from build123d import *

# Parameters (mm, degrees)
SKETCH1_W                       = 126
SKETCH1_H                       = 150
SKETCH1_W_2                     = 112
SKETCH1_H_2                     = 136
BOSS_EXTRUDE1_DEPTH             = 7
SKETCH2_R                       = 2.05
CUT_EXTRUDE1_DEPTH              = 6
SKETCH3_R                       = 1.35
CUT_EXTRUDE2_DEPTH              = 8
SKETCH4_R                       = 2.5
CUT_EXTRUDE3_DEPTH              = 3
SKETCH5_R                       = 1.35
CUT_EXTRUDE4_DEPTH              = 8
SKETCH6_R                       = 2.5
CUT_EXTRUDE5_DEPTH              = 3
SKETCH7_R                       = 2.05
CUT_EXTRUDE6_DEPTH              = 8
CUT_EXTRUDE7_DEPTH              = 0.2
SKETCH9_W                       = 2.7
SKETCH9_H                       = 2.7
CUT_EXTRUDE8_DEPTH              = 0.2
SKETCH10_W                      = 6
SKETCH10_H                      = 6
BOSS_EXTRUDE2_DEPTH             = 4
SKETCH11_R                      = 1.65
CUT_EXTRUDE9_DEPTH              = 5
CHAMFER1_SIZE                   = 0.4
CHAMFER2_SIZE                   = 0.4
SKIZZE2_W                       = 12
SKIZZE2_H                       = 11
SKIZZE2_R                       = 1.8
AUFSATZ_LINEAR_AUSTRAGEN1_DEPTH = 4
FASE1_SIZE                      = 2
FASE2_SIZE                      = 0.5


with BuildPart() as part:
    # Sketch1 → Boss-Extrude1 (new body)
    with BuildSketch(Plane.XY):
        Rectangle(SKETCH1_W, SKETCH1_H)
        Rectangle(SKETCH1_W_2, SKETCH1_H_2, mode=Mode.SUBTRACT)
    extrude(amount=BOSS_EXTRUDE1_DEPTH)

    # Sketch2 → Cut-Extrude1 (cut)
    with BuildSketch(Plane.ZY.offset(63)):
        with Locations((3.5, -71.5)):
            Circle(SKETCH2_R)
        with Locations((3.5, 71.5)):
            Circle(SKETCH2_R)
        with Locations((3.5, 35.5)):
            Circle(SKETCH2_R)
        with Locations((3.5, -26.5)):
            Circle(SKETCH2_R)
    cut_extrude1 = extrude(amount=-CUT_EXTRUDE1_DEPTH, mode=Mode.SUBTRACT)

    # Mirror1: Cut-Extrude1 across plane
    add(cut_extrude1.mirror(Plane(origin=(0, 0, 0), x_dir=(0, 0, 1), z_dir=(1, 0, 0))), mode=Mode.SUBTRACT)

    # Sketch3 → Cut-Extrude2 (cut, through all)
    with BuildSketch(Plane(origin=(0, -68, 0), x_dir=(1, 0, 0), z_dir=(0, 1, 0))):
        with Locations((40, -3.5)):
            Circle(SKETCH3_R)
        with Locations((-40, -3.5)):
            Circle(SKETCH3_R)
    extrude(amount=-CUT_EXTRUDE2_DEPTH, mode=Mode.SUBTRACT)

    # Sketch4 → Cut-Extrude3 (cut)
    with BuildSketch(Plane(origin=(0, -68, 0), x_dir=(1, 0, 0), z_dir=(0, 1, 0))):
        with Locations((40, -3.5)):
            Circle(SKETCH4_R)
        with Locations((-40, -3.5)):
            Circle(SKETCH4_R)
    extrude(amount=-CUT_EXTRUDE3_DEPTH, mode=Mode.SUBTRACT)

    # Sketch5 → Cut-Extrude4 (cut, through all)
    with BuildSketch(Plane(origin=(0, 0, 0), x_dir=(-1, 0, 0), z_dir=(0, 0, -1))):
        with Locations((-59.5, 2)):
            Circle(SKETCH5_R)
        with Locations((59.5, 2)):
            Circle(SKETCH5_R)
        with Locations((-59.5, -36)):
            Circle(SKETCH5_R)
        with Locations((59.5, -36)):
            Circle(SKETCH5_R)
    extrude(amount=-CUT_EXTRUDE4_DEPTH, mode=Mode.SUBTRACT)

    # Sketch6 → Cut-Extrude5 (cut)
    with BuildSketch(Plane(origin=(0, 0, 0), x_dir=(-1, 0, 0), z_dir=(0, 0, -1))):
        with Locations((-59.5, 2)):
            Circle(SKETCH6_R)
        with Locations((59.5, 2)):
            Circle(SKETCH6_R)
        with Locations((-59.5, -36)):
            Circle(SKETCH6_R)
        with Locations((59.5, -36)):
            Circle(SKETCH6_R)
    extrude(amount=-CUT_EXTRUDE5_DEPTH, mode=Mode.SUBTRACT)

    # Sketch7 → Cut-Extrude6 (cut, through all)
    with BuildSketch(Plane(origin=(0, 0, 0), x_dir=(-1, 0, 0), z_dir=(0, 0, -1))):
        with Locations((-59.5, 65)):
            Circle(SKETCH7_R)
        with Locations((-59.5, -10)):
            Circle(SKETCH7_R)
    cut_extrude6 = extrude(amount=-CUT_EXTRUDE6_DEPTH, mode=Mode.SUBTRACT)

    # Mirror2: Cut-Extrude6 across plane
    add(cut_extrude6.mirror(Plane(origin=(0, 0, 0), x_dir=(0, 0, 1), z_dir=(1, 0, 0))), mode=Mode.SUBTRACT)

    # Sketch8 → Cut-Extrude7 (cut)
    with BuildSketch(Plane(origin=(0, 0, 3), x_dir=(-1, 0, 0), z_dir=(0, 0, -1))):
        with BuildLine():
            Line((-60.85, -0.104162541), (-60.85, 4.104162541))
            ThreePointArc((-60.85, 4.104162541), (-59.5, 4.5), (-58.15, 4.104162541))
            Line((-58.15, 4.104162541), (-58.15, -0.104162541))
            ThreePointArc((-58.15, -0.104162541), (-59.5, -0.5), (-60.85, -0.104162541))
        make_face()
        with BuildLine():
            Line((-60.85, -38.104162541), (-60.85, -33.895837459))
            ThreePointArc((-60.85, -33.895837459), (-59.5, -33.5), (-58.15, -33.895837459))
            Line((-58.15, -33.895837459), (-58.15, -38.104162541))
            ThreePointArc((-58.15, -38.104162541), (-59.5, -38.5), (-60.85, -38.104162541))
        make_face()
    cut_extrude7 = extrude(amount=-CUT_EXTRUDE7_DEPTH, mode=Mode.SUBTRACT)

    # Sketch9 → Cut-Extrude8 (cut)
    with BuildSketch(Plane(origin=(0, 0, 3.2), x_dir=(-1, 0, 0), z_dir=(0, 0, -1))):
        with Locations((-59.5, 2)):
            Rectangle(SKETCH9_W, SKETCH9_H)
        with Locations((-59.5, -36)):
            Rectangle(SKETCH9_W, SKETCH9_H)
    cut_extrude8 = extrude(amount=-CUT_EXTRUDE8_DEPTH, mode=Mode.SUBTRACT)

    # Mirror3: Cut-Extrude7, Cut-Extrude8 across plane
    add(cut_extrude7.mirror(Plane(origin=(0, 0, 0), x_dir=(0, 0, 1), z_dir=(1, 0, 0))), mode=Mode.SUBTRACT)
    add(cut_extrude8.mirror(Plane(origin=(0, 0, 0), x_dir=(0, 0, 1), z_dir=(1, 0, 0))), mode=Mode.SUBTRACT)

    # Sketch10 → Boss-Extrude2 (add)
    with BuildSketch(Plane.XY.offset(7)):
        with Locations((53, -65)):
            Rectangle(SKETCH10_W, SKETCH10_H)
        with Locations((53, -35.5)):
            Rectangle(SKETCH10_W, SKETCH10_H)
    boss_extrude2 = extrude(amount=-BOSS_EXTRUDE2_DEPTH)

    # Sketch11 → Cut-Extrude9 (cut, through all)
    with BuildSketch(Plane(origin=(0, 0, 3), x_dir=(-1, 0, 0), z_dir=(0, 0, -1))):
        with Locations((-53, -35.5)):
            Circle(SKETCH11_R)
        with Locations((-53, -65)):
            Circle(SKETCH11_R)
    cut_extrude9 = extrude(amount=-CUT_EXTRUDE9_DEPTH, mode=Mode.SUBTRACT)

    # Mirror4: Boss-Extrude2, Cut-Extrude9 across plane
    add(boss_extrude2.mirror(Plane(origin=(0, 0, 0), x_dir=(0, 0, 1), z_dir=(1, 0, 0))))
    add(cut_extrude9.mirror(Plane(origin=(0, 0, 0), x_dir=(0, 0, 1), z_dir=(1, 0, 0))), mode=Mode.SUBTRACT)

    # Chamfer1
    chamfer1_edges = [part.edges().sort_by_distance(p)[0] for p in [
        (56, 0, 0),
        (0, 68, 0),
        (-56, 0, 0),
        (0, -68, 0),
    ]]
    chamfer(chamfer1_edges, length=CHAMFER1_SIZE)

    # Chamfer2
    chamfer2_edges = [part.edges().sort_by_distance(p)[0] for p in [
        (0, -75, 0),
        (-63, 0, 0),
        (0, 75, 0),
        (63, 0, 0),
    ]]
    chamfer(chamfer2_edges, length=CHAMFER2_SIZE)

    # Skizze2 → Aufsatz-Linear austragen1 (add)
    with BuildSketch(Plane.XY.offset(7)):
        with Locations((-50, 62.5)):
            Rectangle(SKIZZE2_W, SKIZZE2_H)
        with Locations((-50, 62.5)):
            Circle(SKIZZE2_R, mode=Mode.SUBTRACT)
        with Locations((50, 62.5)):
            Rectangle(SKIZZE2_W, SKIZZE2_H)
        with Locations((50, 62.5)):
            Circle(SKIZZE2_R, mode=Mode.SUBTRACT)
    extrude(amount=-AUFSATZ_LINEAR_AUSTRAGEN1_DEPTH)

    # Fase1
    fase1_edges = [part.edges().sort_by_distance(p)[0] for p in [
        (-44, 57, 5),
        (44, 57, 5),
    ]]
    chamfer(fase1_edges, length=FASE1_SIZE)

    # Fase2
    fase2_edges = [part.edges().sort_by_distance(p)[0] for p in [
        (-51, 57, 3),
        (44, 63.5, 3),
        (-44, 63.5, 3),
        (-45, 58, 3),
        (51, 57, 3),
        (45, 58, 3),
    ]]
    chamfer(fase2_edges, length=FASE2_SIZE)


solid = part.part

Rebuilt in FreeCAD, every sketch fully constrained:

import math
import FreeCAD as App
import Part
import Sketcher

V = App.Vector
Q = App.Units.Quantity


def edges_at(feature, points):
    """Names of the edges that pass closest to the given points."""
    edges = feature.Shape.Edges
    near = lambda p: min(range(len(edges)), key=lambda i: edges[i].distToShape(Part.Vertex(*p))[0])
    return sorted({f"Edge{near(p) + 1}" for p in points})


def add_polygon(sketch, points):
    """Adds a closed chain of lines whose ends are joined by coincident constraints."""
    first, n = sketch.GeometryCount, len(points)
    for a, b in zip(points, points[1:] + points[:1]):
        sketch.addGeometry(Part.LineSegment(App.Vector(*a, 0), App.Vector(*b, 0)), False)
    for i in range(n):
        sketch.addConstraint(Sketcher.Constraint("Coincident", first + i, 2, first + (i + 1) % n, 1))

doc = App.newDocument("Part")
params = doc.addObject("Spreadsheet::Sheet", "Params")
for row, (alias, value) in enumerate([
    ("sketch1_width", "126 mm"),
    ("sketch1_width2", "112 mm"),
    ("sketch1_height", "150 mm"),
    ("sketch1_height2", "136 mm"),
    ("pad1_length", "7 mm"),
    ("sketch2_diameter", "4.1 mm"),
    ("pocket1_length", "6 mm"),
    ("sketch3_diameter", "2.7 mm"),
    ("sketch4_diameter", "5 mm"),
    ("pocket3_length", "3 mm"),
    ("sketch5_diameter", "2.7 mm"),
    ("sketch6_diameter", "5 mm"),
    ("pocket5_length", "3 mm"),
    ("sketch7_diameter", "4.1 mm"),
    ("sketch8_radius", "2.5 mm"),
    ("pocket7_length", "0.2 mm"),
    ("sketch9_width", "2.7 mm"),
    ("pocket8_length", "0.2 mm"),
    ("sketch10_width", "6 mm"),
    ("pad2_length", "4 mm"),
    ("sketch11_diameter", "3.3 mm"),
    ("chamfer_size", "0.4 mm"),
    ("chamfer2_size", "0.4 mm"),
    ("sketch12_diameter", "3.6 mm"),
    ("sketch12_width", "12 mm"),
    ("sketch12_height", "11 mm"),
    ("pad3_length", "4 mm"),
    ("chamfer3_size", "2 mm"),
    ("chamfer4_size", "0.5 mm"),
], start=1):
    params.set(f"A{row}", alias)
    params.set(f"B{row}", "=" + value)
    params.setAlias(f"B{row}", alias)

body = doc.addObject("PartDesign::Body", "Body")

# Sketch on XY plane
sketch1 = doc.addObject("Sketcher::SketchObject", "Sketch")
body.addObject(sketch1)
sketch1.AttachmentSupport = (doc.XY_Plane, [""])
sketch1.MapMode = "FlatFace"
add_polygon(sketch1, [(-63, 75), (-63, -75), (63, -75), (63, 75)])  # lines 0-3
add_polygon(sketch1, [(56, -68), (-56, -68), (-56, 68), (56, 68)])  # lines 4-7
sketch1.addConstraint([
    Sketcher.Constraint("Vertical", 0),
    Sketcher.Constraint("Horizontal", 1),
    Sketcher.Constraint("Vertical", 2),
    Sketcher.Constraint("Horizontal", 3),
    Sketcher.Constraint("Horizontal", 4),
    Sketcher.Constraint("Vertical", 5),
    Sketcher.Constraint("Horizontal", 6),
    Sketcher.Constraint("Vertical", 7),
    Sketcher.Constraint("Symmetric", 0, 2, 2, 2, -1, 1),
    Sketcher.Constraint("Symmetric", 4, 2, 6, 2, -1, 1),
    Sketcher.Constraint("DistanceX", 1, 1, 1, 2, Q("126 mm")),
    Sketcher.Constraint("DistanceX", 4, 2, 4, 1, Q("112 mm")),
    Sketcher.Constraint("DistanceY", 0, 2, 0, 1, Q("150 mm")),
    Sketcher.Constraint("DistanceY", 5, 1, 5, 2, Q("136 mm")),
])
sketch1.setExpression("Constraints[18]", "Params.sketch1_width")
sketch1.setExpression("Constraints[19]", "Params.sketch1_width2")
sketch1.setExpression("Constraints[20]", "Params.sketch1_height")
sketch1.setExpression("Constraints[21]", "Params.sketch1_height2")
pad1 = doc.addObject("PartDesign::Pad", "Pad")
body.addObject(pad1)
pad1.Profile = sketch1
pad1.setExpression("Length", "Params.pad1_length")

# Sketch on YZ plane
sketch2 = doc.addObject("Sketcher::SketchObject", "Sketch001")
body.addObject(sketch2)
sketch2.AttachmentSupport = (doc.YZ_Plane, [""])
sketch2.MapMode = "FlatFace"
sketch2.AttachmentOffset = App.Placement(V(0, 0, -63), App.Rotation())
sketch2.addGeometry([
    Part.Circle(V(-71.5, 3.5, 0), V(0, 0, 1), 2.05),
    Part.Circle(V(71.5, 3.5, 0), V(0, 0, 1), 2.05),
    Part.Circle(V(35.5, 3.5, 0), V(0, 0, 1), 2.05),
    Part.Circle(V(-26.5, 3.5, 0), V(0, 0, 1), 2.05),
], False)
sketch2.addConstraint([
    Sketcher.Constraint("Equal", 0, 1),
    Sketcher.Constraint("Equal", 1, 2),
    Sketcher.Constraint("Equal", 2, 3),
    Sketcher.Constraint("Symmetric", 0, 3, 1, 3, -2),
    Sketcher.Constraint("Horizontal", 1, 3, 2, 3),
    Sketcher.Constraint("Horizontal", 2, 3, 3, 3),
    Sketcher.Constraint("Diameter", 0, Q("4.1 mm")),
    Sketcher.Constraint("DistanceX", 0, 3, 1, 3, Q("143 mm")),
    Sketcher.Constraint("DistanceX", 2, 3, 1, 3, Q("36 mm")),
    Sketcher.Constraint("DistanceX", 0, 3, 3, 3, Q("45 mm")),
    Sketcher.Constraint("DistanceY", -1, 1, 0, 3, Q("3.5 mm")),
])
sketch2.setExpression("Constraints[6]", "Params.sketch2_diameter")
pocket1 = doc.addObject("PartDesign::Pocket", "Pocket")
body.addObject(pocket1)
pocket1.Profile = sketch2
pocket1.setExpression("Length", "Params.pocket1_length")
pocket1.Reversed = True
doc.recompute()

mirrored = doc.addObject("PartDesign::Mirrored", "Mirrored")
body.addObject(mirrored)
mirrored.Originals = [pocket1]
mirrored.MirrorPlane = (doc.YZ_Plane, [""])
body.Tip = mirrored

# Sketch on XZ plane
sketch3 = doc.addObject("Sketcher::SketchObject", "Sketch002")
body.addObject(sketch3)
sketch3.AttachmentSupport = (doc.XZ_Plane, [""])
sketch3.MapMode = "FlatFace"
sketch3.AttachmentOffset = App.Placement(V(0, 0, 68), App.Rotation())
sketch3.addGeometry([
    Part.Circle(V(40, 3.5, 0), V(0, 0, 1), 1.35),
    Part.Circle(V(-40, 3.5, 0), V(0, 0, 1), 1.35),
], False)
sketch3.addConstraint([
    Sketcher.Constraint("Equal", 0, 1),
    Sketcher.Constraint("Symmetric", 0, 3, 1, 3, -2),
    Sketcher.Constraint("Diameter", 0, Q("2.7 mm")),
    Sketcher.Constraint("DistanceX", -1, 1, 0, 3, Q("40 mm")),
    Sketcher.Constraint("DistanceY", -1, 1, 0, 3, Q("3.5 mm")),
])
sketch3.setExpression("Constraints[2]", "Params.sketch3_diameter")
pocket2 = doc.addObject("PartDesign::Pocket", "Pocket001")
body.addObject(pocket2)
pocket2.Profile = sketch3
pocket2.Type = "ThroughAll"
pocket2.Reversed = True

# Sketch on XZ plane
sketch4 = doc.addObject("Sketcher::SketchObject", "Sketch003")
body.addObject(sketch4)
sketch4.AttachmentSupport = (doc.XZ_Plane, [""])
sketch4.MapMode = "FlatFace"
sketch4.AttachmentOffset = App.Placement(V(0, 0, 68), App.Rotation())
sketch4.addGeometry([
    Part.Circle(V(40, 3.5, 0), V(0, 0, 1), 2.5),
    Part.Circle(V(-40, 3.5, 0), V(0, 0, 1), 2.5),
], False)
sketch4.addConstraint([
    Sketcher.Constraint("Equal", 0, 1),
    Sketcher.Constraint("Symmetric", 0, 3, 1, 3, -2),
    Sketcher.Constraint("Diameter", 0, Q("5 mm")),
    Sketcher.Constraint("DistanceX", -1, 1, 0, 3, Q("40 mm")),
    Sketcher.Constraint("DistanceY", -1, 1, 0, 3, Q("3.5 mm")),
])
sketch4.setExpression("Constraints[2]", "Params.sketch4_diameter")
pocket3 = doc.addObject("PartDesign::Pocket", "Pocket002")
body.addObject(pocket3)
pocket3.Profile = sketch4
pocket3.setExpression("Length", "Params.pocket3_length")
pocket3.Reversed = True

# Sketch on XY plane
sketch5 = doc.addObject("Sketcher::SketchObject", "Sketch004")
body.addObject(sketch5)
sketch5.AttachmentSupport = (doc.XY_Plane, [""])
sketch5.MapMode = "FlatFace"
sketch5.addGeometry([
    Part.Circle(V(59.5, 2, 0), V(0, 0, 1), 1.35),
    Part.Circle(V(-59.5, 2, 0), V(0, 0, 1), 1.35),
    Part.Circle(V(59.5, -36, 0), V(0, 0, 1), 1.35),
    Part.Circle(V(-59.5, -36, 0), V(0, 0, 1), 1.35),
], False)
sketch5.addConstraint([
    Sketcher.Constraint("Equal", 0, 1),
    Sketcher.Constraint("Equal", 1, 2),
    Sketcher.Constraint("Equal", 2, 3),
    Sketcher.Constraint("Symmetric", 0, 3, 1, 3, -2),
    Sketcher.Constraint("Symmetric", 2, 3, 3, 3, -2),
    Sketcher.Constraint("Vertical", 0, 3, 2, 3),
    Sketcher.Constraint("Diameter", 0, Q("2.7 mm")),
    Sketcher.Constraint("DistanceY", -1, 1, 0, 3, Q("2 mm")),
    Sketcher.Constraint("DistanceY", 2, 3, -1, 1, Q("36 mm")),
    Sketcher.Constraint("DistanceX", 1, 3, 0, 3, Q("119 mm")),
])
sketch5.setExpression("Constraints[6]", "Params.sketch5_diameter")
pocket4 = doc.addObject("PartDesign::Pocket", "Pocket003")
body.addObject(pocket4)
pocket4.Profile = sketch5
pocket4.Type = "ThroughAll"
pocket4.Reversed = True

# Sketch on XY plane
sketch6 = doc.addObject("Sketcher::SketchObject", "Sketch005")
body.addObject(sketch6)
sketch6.AttachmentSupport = (doc.XY_Plane, [""])
sketch6.MapMode = "FlatFace"
sketch6.addGeometry([
    Part.Circle(V(59.5, 2, 0), V(0, 0, 1), 2.5),
    Part.Circle(V(-59.5, 2, 0), V(0, 0, 1), 2.5),
    Part.Circle(V(59.5, -36, 0), V(0, 0, 1), 2.5),
    Part.Circle(V(-59.5, -36, 0), V(0, 0, 1), 2.5),
], False)
sketch6.addConstraint([
    Sketcher.Constraint("Equal", 0, 1),
    Sketcher.Constraint("Equal", 1, 2),
    Sketcher.Constraint("Equal", 2, 3),
    Sketcher.Constraint("Symmetric", 0, 3, 1, 3, -2),
    Sketcher.Constraint("Symmetric", 2, 3, 3, 3, -2),
    Sketcher.Constraint("Vertical", 0, 3, 2, 3),
    Sketcher.Constraint("Diameter", 0, Q("5 mm")),
    Sketcher.Constraint("DistanceY", -1, 1, 0, 3, Q("2 mm")),
    Sketcher.Constraint("DistanceY", 2, 3, -1, 1, Q("36 mm")),
    Sketcher.Constraint("DistanceX", 1, 3, 0, 3, Q("119 mm")),
])
sketch6.setExpression("Constraints[6]", "Params.sketch6_diameter")
pocket5 = doc.addObject("PartDesign::Pocket", "Pocket004")
body.addObject(pocket5)
pocket5.Profile = sketch6
pocket5.setExpression("Length", "Params.pocket5_length")
pocket5.Reversed = True

# Sketch on XY plane
sketch7 = doc.addObject("Sketcher::SketchObject", "Sketch006")
body.addObject(sketch7)
sketch7.AttachmentSupport = (doc.XY_Plane, [""])
sketch7.MapMode = "FlatFace"
sketch7.addGeometry([
    Part.Circle(V(59.5, 65, 0), V(0, 0, 1), 2.05),
    Part.Circle(V(59.5, -10, 0), V(0, 0, 1), 2.05),
], False)
sketch7.addConstraint([
    Sketcher.Constraint("Equal", 0, 1),
    Sketcher.Constraint("Vertical", 0, 3, 1, 3),
    Sketcher.Constraint("Diameter", 0, Q("4.1 mm")),
    Sketcher.Constraint("DistanceY", -1, 1, 0, 3, Q("65 mm")),
    Sketcher.Constraint("DistanceY", 1, 3, -1, 1, Q("10 mm")),
    Sketcher.Constraint("DistanceX", -1, 1, 0, 3, Q("59.5 mm")),
])
sketch7.setExpression("Constraints[2]", "Params.sketch7_diameter")
pocket6 = doc.addObject("PartDesign::Pocket", "Pocket005")
body.addObject(pocket6)
pocket6.Profile = sketch7
pocket6.Type = "ThroughAll"
pocket6.Reversed = True
doc.recompute()

mirrored2 = doc.addObject("PartDesign::Mirrored", "Mirrored001")
body.addObject(mirrored2)
mirrored2.Originals = [pocket6]
mirrored2.MirrorPlane = (doc.YZ_Plane, [""])
body.Tip = mirrored2

# Sketch on XY plane
sketch8 = doc.addObject("Sketcher::SketchObject", "Sketch007")
body.addObject(sketch8)
sketch8.AttachmentSupport = (doc.XY_Plane, [""])
sketch8.MapMode = "FlatFace"
sketch8.AttachmentOffset = App.Placement(V(0, 0, 3), App.Rotation())
sketch8.addGeometry([
    Part.LineSegment(V(60.85, 4.104163, 0), V(60.85, -0.104163, 0)),  # 0
    Part.ArcOfCircle(Part.Circle(V(59.5, 2, 0), V(0, 0, 1), 2.5), math.radians(-122.683639), math.radians(-57.316361)),  # 1
    Part.LineSegment(V(58.15, -0.104163, 0), V(58.15, 4.104163, 0)),  # 2
    Part.ArcOfCircle(Part.Circle(V(59.5, 2, 0), V(0, 0, 1), 2.5), math.radians(57.316361), math.radians(122.683639)),  # 3
    Part.LineSegment(V(60.85, -33.895837, 0), V(60.85, -38.104163, 0)),  # 4
    Part.ArcOfCircle(Part.Circle(V(59.5, -36, 0), V(0, 0, 1), 2.5), math.radians(-122.683639), math.radians(-57.316361)),  # 5
    Part.LineSegment(V(58.15, -38.104163, 0), V(58.15, -33.895837, 0)),  # 6
    Part.ArcOfCircle(Part.Circle(V(59.5, -36, 0), V(0, 0, 1), 2.5), math.radians(57.316361), math.radians(122.683639)),  # 7
], False)
sketch8.addConstraint([
    Sketcher.Constraint("Coincident", 0, 2, 1, 2),
    Sketcher.Constraint("Coincident", 1, 1, 2, 1),
    Sketcher.Constraint("Coincident", 2, 2, 3, 2),
    Sketcher.Constraint("Coincident", 3, 1, 0, 1),
    Sketcher.Constraint("Coincident", 4, 2, 5, 2),
    Sketcher.Constraint("Coincident", 5, 1, 6, 1),
    Sketcher.Constraint("Coincident", 6, 2, 7, 2),
    Sketcher.Constraint("Coincident", 7, 1, 4, 1),
    Sketcher.Constraint("Vertical", 0),
    Sketcher.Constraint("Vertical", 2),
    Sketcher.Constraint("Vertical", 4),
    Sketcher.Constraint("Vertical", 6),
    Sketcher.Constraint("Coincident", 3, 3, 1, 3),
    Sketcher.Constraint("Coincident", 7, 3, 5, 3),
    Sketcher.Constraint("Equal", 1, 3),
    Sketcher.Constraint("Equal", 3, 5),
    Sketcher.Constraint("Equal", 5, 7),
    Sketcher.Constraint("Horizontal", 0, 2, 1, 1),
    Sketcher.Constraint("Horizontal", 4, 2, 5, 1),
    Sketcher.Constraint("Vertical", 3, 3, 5, 3),
    Sketcher.Constraint("Vertical", 3, 1, 4, 2),
    Sketcher.Constraint("Radius", 1, Q("2.5 mm")),
    Sketcher.Constraint("DistanceY", -1, 1, 1, 3, Q("2 mm")),
    Sketcher.Constraint("DistanceY", 5, 3, -1, 1, Q("36 mm")),
    Sketcher.Constraint("DistanceX", -1, 1, 1, 3, Q("59.5 mm")),
    Sketcher.Constraint("DistanceX", 1, 1, 0, 2, Q("2.7 mm")),
])
sketch8.setExpression("Constraints[21]", "Params.sketch8_radius")
pocket7 = doc.addObject("PartDesign::Pocket", "Pocket006")
body.addObject(pocket7)
pocket7.Profile = sketch8
pocket7.setExpression("Length", "Params.pocket7_length")
pocket7.Reversed = True

# Sketch on XY plane
sketch9 = doc.addObject("Sketcher::SketchObject", "Sketch008")
body.addObject(sketch9)
sketch9.AttachmentSupport = (doc.XY_Plane, [""])
sketch9.MapMode = "FlatFace"
sketch9.AttachmentOffset = App.Placement(V(0, 0, 3.2), App.Rotation())
add_polygon(sketch9, [(60.85, 3.35), (60.85, 0.65), (58.15, 0.65), (58.15, 3.35)])  # lines 0-3
add_polygon(sketch9, [(60.85, -34.65), (60.85, -37.35), (58.15, -37.35), (58.15, -34.65)])  # lines 4-7
sketch9.addConstraint([
    Sketcher.Constraint("Vertical", 0),
    Sketcher.Constraint("Horizontal", 1),
    Sketcher.Constraint("Vertical", 2),
    Sketcher.Constraint("Horizontal", 3),
    Sketcher.Constraint("Vertical", 4),
    Sketcher.Constraint("Horizontal", 5),
    Sketcher.Constraint("Vertical", 6),
    Sketcher.Constraint("Horizontal", 7),
    Sketcher.Constraint("Vertical", 3, 2, 4, 2),
    Sketcher.Constraint("Vertical", 2, 2, 5, 2),
    Sketcher.Constraint("Equal", 7, 0),
    Sketcher.Constraint("Equal", 2, 4),
    Sketcher.Constraint("DistanceX", 1, 2, 1, 1, Q("2.7 mm")),
    Sketcher.Constraint("DistanceY", 4, 2, 0, 2, Q("38 mm")),
    Sketcher.Constraint("DistanceX", -1, 1, 0, 2, Q("60.85 mm")),
    Sketcher.Constraint("DistanceY", -1, 1, 0, 2, Q("0.65 mm")),
])
sketch9.setExpression("Constraints[20]", "Params.sketch9_width")
pocket8 = doc.addObject("PartDesign::Pocket", "Pocket007")
body.addObject(pocket8)
pocket8.Profile = sketch9
pocket8.setExpression("Length", "Params.pocket8_length")
pocket8.Reversed = True
doc.recompute()

mirrored3 = doc.addObject("PartDesign::Mirrored", "Mirrored002")
body.addObject(mirrored3)
mirrored3.Originals = [pocket7, pocket8]
mirrored3.MirrorPlane = (doc.YZ_Plane, [""])
body.Tip = mirrored3

# Sketch on XY plane
sketch10 = doc.addObject("Sketcher::SketchObject", "Sketch009")
body.addObject(sketch10)
sketch10.AttachmentSupport = (doc.XY_Plane, [""])
sketch10.MapMode = "FlatFace"
sketch10.AttachmentOffset = App.Placement(V(0, 0, 7), App.Rotation())
add_polygon(sketch10, [(50, -62), (50, -68), (56, -68), (56, -62)])  # lines 0-3
add_polygon(sketch10, [(50, -32.5), (50, -38.5), (56, -38.5), (56, -32.5)])  # lines 4-7
sketch10.addConstraint([
    Sketcher.Constraint("Vertical", 0),
    Sketcher.Constraint("Horizontal", 1),
    Sketcher.Constraint("Vertical", 2),
    Sketcher.Constraint("Horizontal", 3),
    Sketcher.Constraint("Vertical", 4),
    Sketcher.Constraint("Horizontal", 5),
    Sketcher.Constraint("Vertical", 6),
    Sketcher.Constraint("Horizontal", 7),
    Sketcher.Constraint("Vertical", 3, 2, 4, 2),
    Sketcher.Constraint("Vertical", 2, 2, 5, 2),
    Sketcher.Constraint("Equal", 7, 0),
    Sketcher.Constraint("Equal", 2, 4),
    Sketcher.Constraint("DistanceX", 1, 1, 1, 2, Q("6 mm")),
    Sketcher.Constraint("DistanceX", -1, 1, 0, 2, Q("50 mm")),
    Sketcher.Constraint("DistanceY", 0, 2, -1, 1, Q("68 mm")),
    Sketcher.Constraint("DistanceY", 4, 2, -1, 1, Q("38.5 mm")),
])
sketch10.setExpression("Constraints[20]", "Params.sketch10_width")
pad2 = doc.addObject("PartDesign::Pad", "Pad001")
body.addObject(pad2)
pad2.Profile = sketch10
pad2.setExpression("Length", "Params.pad2_length")
pad2.Reversed = True

# Sketch on XY plane
sketch11 = doc.addObject("Sketcher::SketchObject", "Sketch010")
body.addObject(sketch11)
sketch11.AttachmentSupport = (doc.XY_Plane, [""])
sketch11.MapMode = "FlatFace"
sketch11.AttachmentOffset = App.Placement(V(0, 0, 3), App.Rotation())
sketch11.addGeometry([
    Part.Circle(V(53, -35.5, 0), V(0, 0, 1), 1.65),
    Part.Circle(V(53, -65, 0), V(0, 0, 1), 1.65),
], False)
sketch11.addConstraint([
    Sketcher.Constraint("Equal", 0, 1),
    Sketcher.Constraint("Vertical", 0, 3, 1, 3),
    Sketcher.Constraint("Diameter", 0, Q("3.3 mm")),
    Sketcher.Constraint("DistanceX", -1, 1, 0, 3, Q("53 mm")),
    Sketcher.Constraint("DistanceY", 1, 3, -1, 1, Q("65 mm")),
    Sketcher.Constraint("DistanceY", 0, 3, -1, 1, Q("35.5 mm")),
])
sketch11.setExpression("Constraints[2]", "Params.sketch11_diameter")
pocket9 = doc.addObject("PartDesign::Pocket", "Pocket008")
body.addObject(pocket9)
pocket9.Profile = sketch11
pocket9.Type = "ThroughAll"
pocket9.Reversed = True
doc.recompute()

mirrored4 = doc.addObject("PartDesign::Mirrored", "Mirrored003")
body.addObject(mirrored4)
mirrored4.Originals = [pad2, pocket9]
mirrored4.MirrorPlane = (doc.YZ_Plane, [""])
body.Tip = mirrored4
doc.recompute()

chamfer = doc.addObject("PartDesign::Chamfer", "Chamfer")
body.addObject(chamfer)
chamfer.Base = (mirrored4, edges_at(mirrored4, [
    (56, 0, 0),
    (0, 68, 0),
    (-56, 0, 0),
    (0, -68, 0),
]))
chamfer.setExpression("Size", "Params.chamfer_size")
doc.recompute()

chamfer2 = doc.addObject("PartDesign::Chamfer", "Chamfer001")
body.addObject(chamfer2)
chamfer2.Base = (chamfer, edges_at(chamfer, [
    (0, -75, 0),
    (-63, 0, 0),
    (0, 75, 0),
    (63, 0, 0),
]))
chamfer2.setExpression("Size", "Params.chamfer2_size")

# Sketch on XY plane
sketch12 = doc.addObject("Sketcher::SketchObject", "Sketch011")
body.addObject(sketch12)
sketch12.AttachmentSupport = (doc.XY_Plane, [""])
sketch12.MapMode = "FlatFace"
sketch12.AttachmentOffset = App.Placement(V(0, 0, 7), App.Rotation())
add_polygon(sketch12, [(-56, 68), (-56, 57), (-44, 57), (-44, 68)])  # lines 0-3
sketch12.addGeometry(Part.Circle(V(-50, 62.5, 0), V(0, 0, 1), 1.8), False)  # 4
add_polygon(sketch12, [(44, 68), (44, 57), (56, 57), (56, 68)])  # lines 5-8
sketch12.addGeometry(Part.Circle(V(50, 62.5, 0), V(0, 0, 1), 1.8), False)  # 9
sketch12.addConstraint([
    Sketcher.Constraint("Vertical", 0),
    Sketcher.Constraint("Horizontal", 1),
    Sketcher.Constraint("Vertical", 2),
    Sketcher.Constraint("Horizontal", 3),
    Sketcher.Constraint("Vertical", 5),
    Sketcher.Constraint("Horizontal", 6),
    Sketcher.Constraint("Vertical", 7),
    Sketcher.Constraint("Horizontal", 8),
    Sketcher.Constraint("Equal", 4, 9),
    Sketcher.Constraint("Symmetric", 4, 3, 9, 3, -2),
    Sketcher.Constraint("Symmetric", 1, 2, 5, 2, -2),
    Sketcher.Constraint("Symmetric", 3, 2, 7, 2, -2),
    Sketcher.Constraint("Diameter", 4, Q("3.6 mm")),
    Sketcher.Constraint("DistanceX", 1, 1, 1, 2, Q("12 mm")),
    Sketcher.Constraint("DistanceY", 0, 2, 0, 1, Q("11 mm")),
    Sketcher.Constraint("DistanceX", 4, 3, -1, 1, Q("50 mm")),
    Sketcher.Constraint("DistanceX", 0, 2, -1, 1, Q("56 mm")),
    Sketcher.Constraint("DistanceY", -1, 1, 0, 2, Q("57 mm")),
    Sketcher.Constraint("DistanceY", -1, 1, 4, 3, Q("62.5 mm")),
])
sketch12.setExpression("Constraints[20]", "Params.sketch12_diameter")
sketch12.setExpression("Constraints[21]", "Params.sketch12_width")
sketch12.setExpression("Constraints[22]", "Params.sketch12_height")
pad3 = doc.addObject("PartDesign::Pad", "Pad002")
body.addObject(pad3)
pad3.Profile = sketch12
pad3.setExpression("Length", "Params.pad3_length")
pad3.Reversed = True
doc.recompute()

chamfer3 = doc.addObject("PartDesign::Chamfer", "Chamfer002")
body.addObject(chamfer3)
chamfer3.Base = (pad3, edges_at(pad3, [(-44, 57, 5), (44, 57, 5)]))
chamfer3.setExpression("Size", "Params.chamfer3_size")
doc.recompute()

chamfer4 = doc.addObject("PartDesign::Chamfer", "Chamfer003")
body.addObject(chamfer4)
chamfer4.Base = (chamfer3, edges_at(chamfer3, [
    (-51, 57, 3),
    (44, 63.5, 3),
    (-44, 63.5, 3),
    (-45, 58, 3),
    (51, 57, 3),
    (45, 58, 3),
]))
chamfer4.setExpression("Size", "Params.chamfer4_size")

doc.recompute()
